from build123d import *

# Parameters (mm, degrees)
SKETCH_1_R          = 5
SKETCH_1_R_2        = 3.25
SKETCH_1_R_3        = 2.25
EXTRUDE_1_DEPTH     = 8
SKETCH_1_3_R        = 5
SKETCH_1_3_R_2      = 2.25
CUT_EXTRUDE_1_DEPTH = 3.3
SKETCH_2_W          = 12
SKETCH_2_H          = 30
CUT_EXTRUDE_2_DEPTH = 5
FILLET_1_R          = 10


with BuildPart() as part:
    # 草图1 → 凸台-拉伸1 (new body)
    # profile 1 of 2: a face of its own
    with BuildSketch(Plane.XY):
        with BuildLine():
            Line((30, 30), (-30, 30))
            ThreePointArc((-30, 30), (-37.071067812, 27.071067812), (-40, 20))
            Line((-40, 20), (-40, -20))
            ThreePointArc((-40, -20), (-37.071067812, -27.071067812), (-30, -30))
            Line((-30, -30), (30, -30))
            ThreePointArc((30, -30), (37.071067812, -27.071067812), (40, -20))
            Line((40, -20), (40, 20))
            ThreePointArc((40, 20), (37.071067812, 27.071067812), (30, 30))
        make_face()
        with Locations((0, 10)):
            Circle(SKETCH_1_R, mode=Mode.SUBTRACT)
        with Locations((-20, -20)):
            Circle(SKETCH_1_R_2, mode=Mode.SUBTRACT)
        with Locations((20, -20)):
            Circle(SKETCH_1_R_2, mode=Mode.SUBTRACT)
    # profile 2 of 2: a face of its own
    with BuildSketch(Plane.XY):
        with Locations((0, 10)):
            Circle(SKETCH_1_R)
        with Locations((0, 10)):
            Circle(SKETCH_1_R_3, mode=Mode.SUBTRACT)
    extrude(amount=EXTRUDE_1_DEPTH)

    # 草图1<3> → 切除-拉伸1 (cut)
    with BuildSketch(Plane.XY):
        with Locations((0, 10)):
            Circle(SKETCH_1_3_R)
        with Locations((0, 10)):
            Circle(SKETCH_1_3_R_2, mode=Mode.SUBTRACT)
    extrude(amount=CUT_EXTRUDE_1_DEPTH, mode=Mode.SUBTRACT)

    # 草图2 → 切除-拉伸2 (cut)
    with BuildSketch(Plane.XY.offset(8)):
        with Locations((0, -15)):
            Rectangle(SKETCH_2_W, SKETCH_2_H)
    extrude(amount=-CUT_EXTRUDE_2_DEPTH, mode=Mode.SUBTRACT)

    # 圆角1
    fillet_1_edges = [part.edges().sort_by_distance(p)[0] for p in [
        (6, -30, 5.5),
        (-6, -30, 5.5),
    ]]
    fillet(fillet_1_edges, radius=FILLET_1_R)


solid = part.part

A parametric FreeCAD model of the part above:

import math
import FreeCAD as App
import Part
import Sketcher

V = App.Vector


def edges_at(feature, points):
    """Names of the edges that pass closest to the given points."""
    edges = feature.Shape.Edges
    near = lambda p: min(range(len(edges)), key=lambda i: edges[i].distToShape(Part.Vertex(*p))[0])
    return sorted({f"Edge{near(p) + 1}" for p in points})

doc = App.newDocument("Part")
body = doc.addObject("PartDesign::Body", "Body")

sketch1 = body.newObject("Sketcher::SketchObject", "Sketch")
sketch1.AttachmentSupport = (doc.getObject("XY_Plane"), [""])
sketch1.MapMode = "FlatFace"
sketch1.addGeometry(Part.LineSegment(V(30, 30, 0), V(-30, 30, 0)), False)
sketch1.addGeometry(Part.ArcOfCircle(Part.Circle(V(-30, 20, 0), V(0, 0, 1), 10), math.radians(90), math.radians(180)), False)
sketch1.addGeometry(Part.LineSegment(V(-40, 20, 0), V(-40, -20, 0)), False)
sketch1.addGeometry(Part.ArcOfCircle(Part.Circle(V(-30, -20, 0), V(0, 0, 1), 10), math.radians(180), math.radians(270)), False)
sketch1.addGeometry(Part.LineSegment(V(-30, -30, 0), V(30, -30, 0)), False)
sketch1.addGeometry(Part.ArcOfCircle(Part.Circle(V(30, -20, 0), V(0, 0, 1), 10), math.radians(-90), math.radians(0)), False)
sketch1.addGeometry(Part.LineSegment(V(40, -20, 0), V(40, 20, 0)), False)
sketch1.addGeometry(Part.ArcOfCircle(Part.Circle(V(30, 20, 0), V(0, 0, 1), 10), math.radians(0), math.radians(90)), False)
sketch1.addGeometry(Part.Circle(V(-20, -20, 0), V(0, 0, 1), 3.2), False)
sketch1.addGeometry(Part.Circle(V(20, -20, 0), V(0, 0, 1), 3.2), False)
sketch1.addGeometry(Part.Circle(V(0, 10, 0), V(0, 0, 1), 2.2), False)
sketch1.addConstraint(Sketcher.Constraint("Tangent", 0, 2, 1, 1))
sketch1.addConstraint(Sketcher.Constraint("Tangent", 1, 2, 2, 1))
sketch1.addConstraint(Sketcher.Constraint("Tangent", 2, 2, 3, 1))
sketch1.addConstraint(Sketcher.Constraint("Tangent", 3, 2, 4, 1))
sketch1.addConstraint(Sketcher.Constraint("Tangent", 4, 2, 5, 1))
sketch1.addConstraint(Sketcher.Constraint("Tangent", 5, 2, 6, 1))
sketch1.addConstraint(Sketcher.Constraint("Tangent", 6, 2, 7, 1))
sketch1.addConstraint(Sketcher.Constraint("Tangent", 7, 2, 0, 1))
sketch1.addConstraint(Sketcher.Constraint("Horizontal", 0))
sketch1.addConstraint(Sketcher.Constraint("Vertical", 2))
sketch1.addConstraint(Sketcher.Constraint("Horizontal", 4))
sketch1.addConstraint(Sketcher.Constraint("Vertical", 6))
sketch1.addConstraint(Sketcher.Constraint("Equal", 1, 3))
sketch1.addConstraint(Sketcher.Constraint("Equal", 3, 5))
sketch1.addConstraint(Sketcher.Constraint("Equal", 5, 7))
sketch1.addConstraint(Sketcher.Constraint("Equal", 8, 9))
sketch1.addConstraint(Sketcher.Constraint("Symmetric", 1, 3, 5, 3, -1, 1))
sketch1.addConstraint(Sketcher.Constraint("Symmetric", 8, 3, 9, 3, -2))
sketch1.addConstraint(Sketcher.Constraint("PointOnObject", 10, 3, -2))
sketch1.addConstraint(Sketcher.Constraint("Horizontal", 5, 3, 8, 3))
sketch1.addConstraint(Sketcher.Constraint("Radius", 1, 10.0))
sketch1.addConstraint(Sketcher.Constraint("Diameter", 8, 6.5))
sketch1.addConstraint(Sketcher.Constraint("Diameter", 10, 4.5))
sketch1.addConstraint(Sketcher.Constraint("DistanceX", 0, 2, 0, 1, 60.0))
sketch1.addConstraint(Sketcher.Constraint("DistanceY", 2, 2, 2, 1, 40.0))
sketch1.addConstraint(Sketcher.Constraint("DistanceX", 8, 3, -1, 1, 20.0))
sketch1.addConstraint(Sketcher.Constraint("DistanceY", -1, 1, 10, 3, 10.0))
pad1 = body.newObject("PartDesign::Pad", "Pad")
pad1.Profile = sketch1
pad1.Length = 8

sketch2 = body.newObject("Sketcher::SketchObject", "Sketch001")
sketch2.AttachmentSupport = (doc.getObject("XY_Plane"), [""])
sketch2.MapMode = "FlatFace"
sketch2.addGeometry(Part.Circle(V(0, 10, 0), V(0, 0, 1), 5), False)
sketch2.addGeometry(Part.Circle(V(0, 10, 0), V(0, 0, 1), 2.2), False)
sketch2.addConstraint(Sketcher.Constraint("Coincident", 1, 3, 0, 3))
sketch2.addConstraint(Sketcher.Constraint("PointOnObject", 0, 3, -2))
sketch2.addConstraint(Sketcher.Constraint("Diameter", 0, 10.0))
sketch2.addConstraint(Sketcher.Constraint("Diameter", 1, 4.5))
sketch2.addConstraint(Sketcher.Constraint("DistanceY", -1, 1, 0, 3, 10.0))
pocket1 = body.newObject("PartDesign::Pocket", "Pocket")
pocket1.Profile = sketch2
pocket1.Length = 3.3
pocket1.Reversed = True

sketch3 = body.newObject("Sketcher::SketchObject", "Sketch002")
sketch3.AttachmentSupport = (doc.getObject("XY_Plane"), [""])
sketch3.MapMode = "FlatFace"
sketch3.AttachmentOffset = App.Placement(V(0, 0, 8), App.Rotation())
sketch3.addGeometry(Part.LineSegment(V(-6, 0, 0), V(-6, -30, 0)), False)
sketch3.addGeometry(Part.LineSegment(V(-6, -30, 0), V(6, -30, 0)), False)
sketch3.addGeometry(Part.LineSegment(V(6, -30, 0), V(6, 0, 0)), False)
sketch3.addGeometry(Part.LineSegment(V(6, 0, 0), V(-6, 0, 0)), False)
sketch3.addConstraint(Sketcher.Constraint("Coincident", 0, 2, 1, 1))
sketch3.addConstraint(Sketcher.Constraint("Coincident", 1, 2, 2, 1))
sketch3.addConstraint(Sketcher.Constraint("Coincident", 2, 2, 3, 1))
sketch3.addConstraint(Sketcher.Constraint("Coincident", 3, 2, 0, 1))
sketch3.addConstraint(Sketcher.Constraint("Vertical", 0))
sketch3.addConstraint(Sketcher.Constraint("Horizontal", 1))
sketch3.addConstraint(Sketcher.Constraint("Vertical", 2))
sketch3.addConstraint(Sketcher.Constraint("Horizontal", 3))
sketch3.addConstraint(Sketcher.Constraint("Symmetric", 2, 2, 3, 2, -1, 1))
sketch3.addConstraint(Sketcher.Constraint("DistanceX", 1, 1, 1, 2, 12.0))
sketch3.addConstraint(Sketcher.Constraint("DistanceY", 0, 2, 0, 1, 30.0))
pocket2 = body.newObject("PartDesign::Pocket", "Pocket001")
pocket2.Profile = sketch3
pocket2.Length = 5
doc.recompute()

fillet = body.newObject("PartDesign::Fillet", "Fillet")
fillet.Base = (pocket2, edges_at(pocket2, [(6, -30, 5.5), (-6, -30, 5.5)]))
fillet.Radius = 10

doc.recompute()
